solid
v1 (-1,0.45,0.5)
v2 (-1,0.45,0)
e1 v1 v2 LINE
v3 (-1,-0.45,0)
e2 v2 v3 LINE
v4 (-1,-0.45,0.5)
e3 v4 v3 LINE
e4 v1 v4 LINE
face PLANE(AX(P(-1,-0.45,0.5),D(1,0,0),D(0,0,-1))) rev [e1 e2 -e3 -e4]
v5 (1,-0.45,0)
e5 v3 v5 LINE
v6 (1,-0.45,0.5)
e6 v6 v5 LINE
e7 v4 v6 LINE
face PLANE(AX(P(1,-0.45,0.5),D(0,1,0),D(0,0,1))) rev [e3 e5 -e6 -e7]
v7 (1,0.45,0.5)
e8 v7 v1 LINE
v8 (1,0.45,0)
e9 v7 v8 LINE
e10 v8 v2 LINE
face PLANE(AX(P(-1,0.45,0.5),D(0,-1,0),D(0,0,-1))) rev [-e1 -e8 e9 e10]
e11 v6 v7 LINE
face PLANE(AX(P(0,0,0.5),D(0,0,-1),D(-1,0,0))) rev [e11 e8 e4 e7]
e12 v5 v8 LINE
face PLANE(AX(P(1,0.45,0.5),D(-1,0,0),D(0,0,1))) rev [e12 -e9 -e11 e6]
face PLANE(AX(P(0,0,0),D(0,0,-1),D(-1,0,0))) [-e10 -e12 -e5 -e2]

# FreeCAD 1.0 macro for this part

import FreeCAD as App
import Part
import Sketcher

doc = App.newDocument("Part")
body = doc.addObject("PartDesign::Body", "Body")

sketch1 = doc.addObject("Sketcher::SketchObject", "Sketch")
body.addObject(sketch1)
sketch1.AttachmentSupport = (doc.XY_Plane, [""])
sketch1.MapMode = "FlatFace"
sketch1.addGeometry([
    Part.LineSegment(App.Vector(-1, 0.45, 0), App.Vector(-1, -0.45, 0)),
    Part.LineSegment(App.Vector(-1, -0.45, 0), App.Vector(1, -0.45, 0)),
    Part.LineSegment(App.Vector(1, -0.45, 0), App.Vector(1, 0.45, 0)),
    Part.LineSegment(App.Vector(1, 0.45, 0), App.Vector(-1, 0.45, 0)),
], False)
sketch1.addConstraint([
    Sketcher.Constraint("Coincident", 0, 2, 1, 1),
    Sketcher.Constraint("Coincident", 1, 2, 2, 1),
    Sketcher.Constraint("Coincident", 2, 2, 3, 1),
    Sketcher.Constraint("Coincident", 3, 2, 0, 1),
    Sketcher.Constraint("Vertical", 0),
    Sketcher.Constraint("Horizontal", 1),
    Sketcher.Constraint("Vertical", 2),
    Sketcher.Constraint("Horizontal", 3),
    Sketcher.Constraint("Symmetric", 0, 2, 2, 2, -1, 1),
    Sketcher.Constraint("DistanceX", 1, 1, 1, 2, 2.0),
    Sketcher.Constraint("DistanceY", 0, 2, 0, 1, 0.9),
])
pad1 = doc.addObject("PartDesign::Pad", "Pad")
body.addObject(pad1)
pad1.Profile = sketch1
pad1.Length = 0.5

doc.recompute()
